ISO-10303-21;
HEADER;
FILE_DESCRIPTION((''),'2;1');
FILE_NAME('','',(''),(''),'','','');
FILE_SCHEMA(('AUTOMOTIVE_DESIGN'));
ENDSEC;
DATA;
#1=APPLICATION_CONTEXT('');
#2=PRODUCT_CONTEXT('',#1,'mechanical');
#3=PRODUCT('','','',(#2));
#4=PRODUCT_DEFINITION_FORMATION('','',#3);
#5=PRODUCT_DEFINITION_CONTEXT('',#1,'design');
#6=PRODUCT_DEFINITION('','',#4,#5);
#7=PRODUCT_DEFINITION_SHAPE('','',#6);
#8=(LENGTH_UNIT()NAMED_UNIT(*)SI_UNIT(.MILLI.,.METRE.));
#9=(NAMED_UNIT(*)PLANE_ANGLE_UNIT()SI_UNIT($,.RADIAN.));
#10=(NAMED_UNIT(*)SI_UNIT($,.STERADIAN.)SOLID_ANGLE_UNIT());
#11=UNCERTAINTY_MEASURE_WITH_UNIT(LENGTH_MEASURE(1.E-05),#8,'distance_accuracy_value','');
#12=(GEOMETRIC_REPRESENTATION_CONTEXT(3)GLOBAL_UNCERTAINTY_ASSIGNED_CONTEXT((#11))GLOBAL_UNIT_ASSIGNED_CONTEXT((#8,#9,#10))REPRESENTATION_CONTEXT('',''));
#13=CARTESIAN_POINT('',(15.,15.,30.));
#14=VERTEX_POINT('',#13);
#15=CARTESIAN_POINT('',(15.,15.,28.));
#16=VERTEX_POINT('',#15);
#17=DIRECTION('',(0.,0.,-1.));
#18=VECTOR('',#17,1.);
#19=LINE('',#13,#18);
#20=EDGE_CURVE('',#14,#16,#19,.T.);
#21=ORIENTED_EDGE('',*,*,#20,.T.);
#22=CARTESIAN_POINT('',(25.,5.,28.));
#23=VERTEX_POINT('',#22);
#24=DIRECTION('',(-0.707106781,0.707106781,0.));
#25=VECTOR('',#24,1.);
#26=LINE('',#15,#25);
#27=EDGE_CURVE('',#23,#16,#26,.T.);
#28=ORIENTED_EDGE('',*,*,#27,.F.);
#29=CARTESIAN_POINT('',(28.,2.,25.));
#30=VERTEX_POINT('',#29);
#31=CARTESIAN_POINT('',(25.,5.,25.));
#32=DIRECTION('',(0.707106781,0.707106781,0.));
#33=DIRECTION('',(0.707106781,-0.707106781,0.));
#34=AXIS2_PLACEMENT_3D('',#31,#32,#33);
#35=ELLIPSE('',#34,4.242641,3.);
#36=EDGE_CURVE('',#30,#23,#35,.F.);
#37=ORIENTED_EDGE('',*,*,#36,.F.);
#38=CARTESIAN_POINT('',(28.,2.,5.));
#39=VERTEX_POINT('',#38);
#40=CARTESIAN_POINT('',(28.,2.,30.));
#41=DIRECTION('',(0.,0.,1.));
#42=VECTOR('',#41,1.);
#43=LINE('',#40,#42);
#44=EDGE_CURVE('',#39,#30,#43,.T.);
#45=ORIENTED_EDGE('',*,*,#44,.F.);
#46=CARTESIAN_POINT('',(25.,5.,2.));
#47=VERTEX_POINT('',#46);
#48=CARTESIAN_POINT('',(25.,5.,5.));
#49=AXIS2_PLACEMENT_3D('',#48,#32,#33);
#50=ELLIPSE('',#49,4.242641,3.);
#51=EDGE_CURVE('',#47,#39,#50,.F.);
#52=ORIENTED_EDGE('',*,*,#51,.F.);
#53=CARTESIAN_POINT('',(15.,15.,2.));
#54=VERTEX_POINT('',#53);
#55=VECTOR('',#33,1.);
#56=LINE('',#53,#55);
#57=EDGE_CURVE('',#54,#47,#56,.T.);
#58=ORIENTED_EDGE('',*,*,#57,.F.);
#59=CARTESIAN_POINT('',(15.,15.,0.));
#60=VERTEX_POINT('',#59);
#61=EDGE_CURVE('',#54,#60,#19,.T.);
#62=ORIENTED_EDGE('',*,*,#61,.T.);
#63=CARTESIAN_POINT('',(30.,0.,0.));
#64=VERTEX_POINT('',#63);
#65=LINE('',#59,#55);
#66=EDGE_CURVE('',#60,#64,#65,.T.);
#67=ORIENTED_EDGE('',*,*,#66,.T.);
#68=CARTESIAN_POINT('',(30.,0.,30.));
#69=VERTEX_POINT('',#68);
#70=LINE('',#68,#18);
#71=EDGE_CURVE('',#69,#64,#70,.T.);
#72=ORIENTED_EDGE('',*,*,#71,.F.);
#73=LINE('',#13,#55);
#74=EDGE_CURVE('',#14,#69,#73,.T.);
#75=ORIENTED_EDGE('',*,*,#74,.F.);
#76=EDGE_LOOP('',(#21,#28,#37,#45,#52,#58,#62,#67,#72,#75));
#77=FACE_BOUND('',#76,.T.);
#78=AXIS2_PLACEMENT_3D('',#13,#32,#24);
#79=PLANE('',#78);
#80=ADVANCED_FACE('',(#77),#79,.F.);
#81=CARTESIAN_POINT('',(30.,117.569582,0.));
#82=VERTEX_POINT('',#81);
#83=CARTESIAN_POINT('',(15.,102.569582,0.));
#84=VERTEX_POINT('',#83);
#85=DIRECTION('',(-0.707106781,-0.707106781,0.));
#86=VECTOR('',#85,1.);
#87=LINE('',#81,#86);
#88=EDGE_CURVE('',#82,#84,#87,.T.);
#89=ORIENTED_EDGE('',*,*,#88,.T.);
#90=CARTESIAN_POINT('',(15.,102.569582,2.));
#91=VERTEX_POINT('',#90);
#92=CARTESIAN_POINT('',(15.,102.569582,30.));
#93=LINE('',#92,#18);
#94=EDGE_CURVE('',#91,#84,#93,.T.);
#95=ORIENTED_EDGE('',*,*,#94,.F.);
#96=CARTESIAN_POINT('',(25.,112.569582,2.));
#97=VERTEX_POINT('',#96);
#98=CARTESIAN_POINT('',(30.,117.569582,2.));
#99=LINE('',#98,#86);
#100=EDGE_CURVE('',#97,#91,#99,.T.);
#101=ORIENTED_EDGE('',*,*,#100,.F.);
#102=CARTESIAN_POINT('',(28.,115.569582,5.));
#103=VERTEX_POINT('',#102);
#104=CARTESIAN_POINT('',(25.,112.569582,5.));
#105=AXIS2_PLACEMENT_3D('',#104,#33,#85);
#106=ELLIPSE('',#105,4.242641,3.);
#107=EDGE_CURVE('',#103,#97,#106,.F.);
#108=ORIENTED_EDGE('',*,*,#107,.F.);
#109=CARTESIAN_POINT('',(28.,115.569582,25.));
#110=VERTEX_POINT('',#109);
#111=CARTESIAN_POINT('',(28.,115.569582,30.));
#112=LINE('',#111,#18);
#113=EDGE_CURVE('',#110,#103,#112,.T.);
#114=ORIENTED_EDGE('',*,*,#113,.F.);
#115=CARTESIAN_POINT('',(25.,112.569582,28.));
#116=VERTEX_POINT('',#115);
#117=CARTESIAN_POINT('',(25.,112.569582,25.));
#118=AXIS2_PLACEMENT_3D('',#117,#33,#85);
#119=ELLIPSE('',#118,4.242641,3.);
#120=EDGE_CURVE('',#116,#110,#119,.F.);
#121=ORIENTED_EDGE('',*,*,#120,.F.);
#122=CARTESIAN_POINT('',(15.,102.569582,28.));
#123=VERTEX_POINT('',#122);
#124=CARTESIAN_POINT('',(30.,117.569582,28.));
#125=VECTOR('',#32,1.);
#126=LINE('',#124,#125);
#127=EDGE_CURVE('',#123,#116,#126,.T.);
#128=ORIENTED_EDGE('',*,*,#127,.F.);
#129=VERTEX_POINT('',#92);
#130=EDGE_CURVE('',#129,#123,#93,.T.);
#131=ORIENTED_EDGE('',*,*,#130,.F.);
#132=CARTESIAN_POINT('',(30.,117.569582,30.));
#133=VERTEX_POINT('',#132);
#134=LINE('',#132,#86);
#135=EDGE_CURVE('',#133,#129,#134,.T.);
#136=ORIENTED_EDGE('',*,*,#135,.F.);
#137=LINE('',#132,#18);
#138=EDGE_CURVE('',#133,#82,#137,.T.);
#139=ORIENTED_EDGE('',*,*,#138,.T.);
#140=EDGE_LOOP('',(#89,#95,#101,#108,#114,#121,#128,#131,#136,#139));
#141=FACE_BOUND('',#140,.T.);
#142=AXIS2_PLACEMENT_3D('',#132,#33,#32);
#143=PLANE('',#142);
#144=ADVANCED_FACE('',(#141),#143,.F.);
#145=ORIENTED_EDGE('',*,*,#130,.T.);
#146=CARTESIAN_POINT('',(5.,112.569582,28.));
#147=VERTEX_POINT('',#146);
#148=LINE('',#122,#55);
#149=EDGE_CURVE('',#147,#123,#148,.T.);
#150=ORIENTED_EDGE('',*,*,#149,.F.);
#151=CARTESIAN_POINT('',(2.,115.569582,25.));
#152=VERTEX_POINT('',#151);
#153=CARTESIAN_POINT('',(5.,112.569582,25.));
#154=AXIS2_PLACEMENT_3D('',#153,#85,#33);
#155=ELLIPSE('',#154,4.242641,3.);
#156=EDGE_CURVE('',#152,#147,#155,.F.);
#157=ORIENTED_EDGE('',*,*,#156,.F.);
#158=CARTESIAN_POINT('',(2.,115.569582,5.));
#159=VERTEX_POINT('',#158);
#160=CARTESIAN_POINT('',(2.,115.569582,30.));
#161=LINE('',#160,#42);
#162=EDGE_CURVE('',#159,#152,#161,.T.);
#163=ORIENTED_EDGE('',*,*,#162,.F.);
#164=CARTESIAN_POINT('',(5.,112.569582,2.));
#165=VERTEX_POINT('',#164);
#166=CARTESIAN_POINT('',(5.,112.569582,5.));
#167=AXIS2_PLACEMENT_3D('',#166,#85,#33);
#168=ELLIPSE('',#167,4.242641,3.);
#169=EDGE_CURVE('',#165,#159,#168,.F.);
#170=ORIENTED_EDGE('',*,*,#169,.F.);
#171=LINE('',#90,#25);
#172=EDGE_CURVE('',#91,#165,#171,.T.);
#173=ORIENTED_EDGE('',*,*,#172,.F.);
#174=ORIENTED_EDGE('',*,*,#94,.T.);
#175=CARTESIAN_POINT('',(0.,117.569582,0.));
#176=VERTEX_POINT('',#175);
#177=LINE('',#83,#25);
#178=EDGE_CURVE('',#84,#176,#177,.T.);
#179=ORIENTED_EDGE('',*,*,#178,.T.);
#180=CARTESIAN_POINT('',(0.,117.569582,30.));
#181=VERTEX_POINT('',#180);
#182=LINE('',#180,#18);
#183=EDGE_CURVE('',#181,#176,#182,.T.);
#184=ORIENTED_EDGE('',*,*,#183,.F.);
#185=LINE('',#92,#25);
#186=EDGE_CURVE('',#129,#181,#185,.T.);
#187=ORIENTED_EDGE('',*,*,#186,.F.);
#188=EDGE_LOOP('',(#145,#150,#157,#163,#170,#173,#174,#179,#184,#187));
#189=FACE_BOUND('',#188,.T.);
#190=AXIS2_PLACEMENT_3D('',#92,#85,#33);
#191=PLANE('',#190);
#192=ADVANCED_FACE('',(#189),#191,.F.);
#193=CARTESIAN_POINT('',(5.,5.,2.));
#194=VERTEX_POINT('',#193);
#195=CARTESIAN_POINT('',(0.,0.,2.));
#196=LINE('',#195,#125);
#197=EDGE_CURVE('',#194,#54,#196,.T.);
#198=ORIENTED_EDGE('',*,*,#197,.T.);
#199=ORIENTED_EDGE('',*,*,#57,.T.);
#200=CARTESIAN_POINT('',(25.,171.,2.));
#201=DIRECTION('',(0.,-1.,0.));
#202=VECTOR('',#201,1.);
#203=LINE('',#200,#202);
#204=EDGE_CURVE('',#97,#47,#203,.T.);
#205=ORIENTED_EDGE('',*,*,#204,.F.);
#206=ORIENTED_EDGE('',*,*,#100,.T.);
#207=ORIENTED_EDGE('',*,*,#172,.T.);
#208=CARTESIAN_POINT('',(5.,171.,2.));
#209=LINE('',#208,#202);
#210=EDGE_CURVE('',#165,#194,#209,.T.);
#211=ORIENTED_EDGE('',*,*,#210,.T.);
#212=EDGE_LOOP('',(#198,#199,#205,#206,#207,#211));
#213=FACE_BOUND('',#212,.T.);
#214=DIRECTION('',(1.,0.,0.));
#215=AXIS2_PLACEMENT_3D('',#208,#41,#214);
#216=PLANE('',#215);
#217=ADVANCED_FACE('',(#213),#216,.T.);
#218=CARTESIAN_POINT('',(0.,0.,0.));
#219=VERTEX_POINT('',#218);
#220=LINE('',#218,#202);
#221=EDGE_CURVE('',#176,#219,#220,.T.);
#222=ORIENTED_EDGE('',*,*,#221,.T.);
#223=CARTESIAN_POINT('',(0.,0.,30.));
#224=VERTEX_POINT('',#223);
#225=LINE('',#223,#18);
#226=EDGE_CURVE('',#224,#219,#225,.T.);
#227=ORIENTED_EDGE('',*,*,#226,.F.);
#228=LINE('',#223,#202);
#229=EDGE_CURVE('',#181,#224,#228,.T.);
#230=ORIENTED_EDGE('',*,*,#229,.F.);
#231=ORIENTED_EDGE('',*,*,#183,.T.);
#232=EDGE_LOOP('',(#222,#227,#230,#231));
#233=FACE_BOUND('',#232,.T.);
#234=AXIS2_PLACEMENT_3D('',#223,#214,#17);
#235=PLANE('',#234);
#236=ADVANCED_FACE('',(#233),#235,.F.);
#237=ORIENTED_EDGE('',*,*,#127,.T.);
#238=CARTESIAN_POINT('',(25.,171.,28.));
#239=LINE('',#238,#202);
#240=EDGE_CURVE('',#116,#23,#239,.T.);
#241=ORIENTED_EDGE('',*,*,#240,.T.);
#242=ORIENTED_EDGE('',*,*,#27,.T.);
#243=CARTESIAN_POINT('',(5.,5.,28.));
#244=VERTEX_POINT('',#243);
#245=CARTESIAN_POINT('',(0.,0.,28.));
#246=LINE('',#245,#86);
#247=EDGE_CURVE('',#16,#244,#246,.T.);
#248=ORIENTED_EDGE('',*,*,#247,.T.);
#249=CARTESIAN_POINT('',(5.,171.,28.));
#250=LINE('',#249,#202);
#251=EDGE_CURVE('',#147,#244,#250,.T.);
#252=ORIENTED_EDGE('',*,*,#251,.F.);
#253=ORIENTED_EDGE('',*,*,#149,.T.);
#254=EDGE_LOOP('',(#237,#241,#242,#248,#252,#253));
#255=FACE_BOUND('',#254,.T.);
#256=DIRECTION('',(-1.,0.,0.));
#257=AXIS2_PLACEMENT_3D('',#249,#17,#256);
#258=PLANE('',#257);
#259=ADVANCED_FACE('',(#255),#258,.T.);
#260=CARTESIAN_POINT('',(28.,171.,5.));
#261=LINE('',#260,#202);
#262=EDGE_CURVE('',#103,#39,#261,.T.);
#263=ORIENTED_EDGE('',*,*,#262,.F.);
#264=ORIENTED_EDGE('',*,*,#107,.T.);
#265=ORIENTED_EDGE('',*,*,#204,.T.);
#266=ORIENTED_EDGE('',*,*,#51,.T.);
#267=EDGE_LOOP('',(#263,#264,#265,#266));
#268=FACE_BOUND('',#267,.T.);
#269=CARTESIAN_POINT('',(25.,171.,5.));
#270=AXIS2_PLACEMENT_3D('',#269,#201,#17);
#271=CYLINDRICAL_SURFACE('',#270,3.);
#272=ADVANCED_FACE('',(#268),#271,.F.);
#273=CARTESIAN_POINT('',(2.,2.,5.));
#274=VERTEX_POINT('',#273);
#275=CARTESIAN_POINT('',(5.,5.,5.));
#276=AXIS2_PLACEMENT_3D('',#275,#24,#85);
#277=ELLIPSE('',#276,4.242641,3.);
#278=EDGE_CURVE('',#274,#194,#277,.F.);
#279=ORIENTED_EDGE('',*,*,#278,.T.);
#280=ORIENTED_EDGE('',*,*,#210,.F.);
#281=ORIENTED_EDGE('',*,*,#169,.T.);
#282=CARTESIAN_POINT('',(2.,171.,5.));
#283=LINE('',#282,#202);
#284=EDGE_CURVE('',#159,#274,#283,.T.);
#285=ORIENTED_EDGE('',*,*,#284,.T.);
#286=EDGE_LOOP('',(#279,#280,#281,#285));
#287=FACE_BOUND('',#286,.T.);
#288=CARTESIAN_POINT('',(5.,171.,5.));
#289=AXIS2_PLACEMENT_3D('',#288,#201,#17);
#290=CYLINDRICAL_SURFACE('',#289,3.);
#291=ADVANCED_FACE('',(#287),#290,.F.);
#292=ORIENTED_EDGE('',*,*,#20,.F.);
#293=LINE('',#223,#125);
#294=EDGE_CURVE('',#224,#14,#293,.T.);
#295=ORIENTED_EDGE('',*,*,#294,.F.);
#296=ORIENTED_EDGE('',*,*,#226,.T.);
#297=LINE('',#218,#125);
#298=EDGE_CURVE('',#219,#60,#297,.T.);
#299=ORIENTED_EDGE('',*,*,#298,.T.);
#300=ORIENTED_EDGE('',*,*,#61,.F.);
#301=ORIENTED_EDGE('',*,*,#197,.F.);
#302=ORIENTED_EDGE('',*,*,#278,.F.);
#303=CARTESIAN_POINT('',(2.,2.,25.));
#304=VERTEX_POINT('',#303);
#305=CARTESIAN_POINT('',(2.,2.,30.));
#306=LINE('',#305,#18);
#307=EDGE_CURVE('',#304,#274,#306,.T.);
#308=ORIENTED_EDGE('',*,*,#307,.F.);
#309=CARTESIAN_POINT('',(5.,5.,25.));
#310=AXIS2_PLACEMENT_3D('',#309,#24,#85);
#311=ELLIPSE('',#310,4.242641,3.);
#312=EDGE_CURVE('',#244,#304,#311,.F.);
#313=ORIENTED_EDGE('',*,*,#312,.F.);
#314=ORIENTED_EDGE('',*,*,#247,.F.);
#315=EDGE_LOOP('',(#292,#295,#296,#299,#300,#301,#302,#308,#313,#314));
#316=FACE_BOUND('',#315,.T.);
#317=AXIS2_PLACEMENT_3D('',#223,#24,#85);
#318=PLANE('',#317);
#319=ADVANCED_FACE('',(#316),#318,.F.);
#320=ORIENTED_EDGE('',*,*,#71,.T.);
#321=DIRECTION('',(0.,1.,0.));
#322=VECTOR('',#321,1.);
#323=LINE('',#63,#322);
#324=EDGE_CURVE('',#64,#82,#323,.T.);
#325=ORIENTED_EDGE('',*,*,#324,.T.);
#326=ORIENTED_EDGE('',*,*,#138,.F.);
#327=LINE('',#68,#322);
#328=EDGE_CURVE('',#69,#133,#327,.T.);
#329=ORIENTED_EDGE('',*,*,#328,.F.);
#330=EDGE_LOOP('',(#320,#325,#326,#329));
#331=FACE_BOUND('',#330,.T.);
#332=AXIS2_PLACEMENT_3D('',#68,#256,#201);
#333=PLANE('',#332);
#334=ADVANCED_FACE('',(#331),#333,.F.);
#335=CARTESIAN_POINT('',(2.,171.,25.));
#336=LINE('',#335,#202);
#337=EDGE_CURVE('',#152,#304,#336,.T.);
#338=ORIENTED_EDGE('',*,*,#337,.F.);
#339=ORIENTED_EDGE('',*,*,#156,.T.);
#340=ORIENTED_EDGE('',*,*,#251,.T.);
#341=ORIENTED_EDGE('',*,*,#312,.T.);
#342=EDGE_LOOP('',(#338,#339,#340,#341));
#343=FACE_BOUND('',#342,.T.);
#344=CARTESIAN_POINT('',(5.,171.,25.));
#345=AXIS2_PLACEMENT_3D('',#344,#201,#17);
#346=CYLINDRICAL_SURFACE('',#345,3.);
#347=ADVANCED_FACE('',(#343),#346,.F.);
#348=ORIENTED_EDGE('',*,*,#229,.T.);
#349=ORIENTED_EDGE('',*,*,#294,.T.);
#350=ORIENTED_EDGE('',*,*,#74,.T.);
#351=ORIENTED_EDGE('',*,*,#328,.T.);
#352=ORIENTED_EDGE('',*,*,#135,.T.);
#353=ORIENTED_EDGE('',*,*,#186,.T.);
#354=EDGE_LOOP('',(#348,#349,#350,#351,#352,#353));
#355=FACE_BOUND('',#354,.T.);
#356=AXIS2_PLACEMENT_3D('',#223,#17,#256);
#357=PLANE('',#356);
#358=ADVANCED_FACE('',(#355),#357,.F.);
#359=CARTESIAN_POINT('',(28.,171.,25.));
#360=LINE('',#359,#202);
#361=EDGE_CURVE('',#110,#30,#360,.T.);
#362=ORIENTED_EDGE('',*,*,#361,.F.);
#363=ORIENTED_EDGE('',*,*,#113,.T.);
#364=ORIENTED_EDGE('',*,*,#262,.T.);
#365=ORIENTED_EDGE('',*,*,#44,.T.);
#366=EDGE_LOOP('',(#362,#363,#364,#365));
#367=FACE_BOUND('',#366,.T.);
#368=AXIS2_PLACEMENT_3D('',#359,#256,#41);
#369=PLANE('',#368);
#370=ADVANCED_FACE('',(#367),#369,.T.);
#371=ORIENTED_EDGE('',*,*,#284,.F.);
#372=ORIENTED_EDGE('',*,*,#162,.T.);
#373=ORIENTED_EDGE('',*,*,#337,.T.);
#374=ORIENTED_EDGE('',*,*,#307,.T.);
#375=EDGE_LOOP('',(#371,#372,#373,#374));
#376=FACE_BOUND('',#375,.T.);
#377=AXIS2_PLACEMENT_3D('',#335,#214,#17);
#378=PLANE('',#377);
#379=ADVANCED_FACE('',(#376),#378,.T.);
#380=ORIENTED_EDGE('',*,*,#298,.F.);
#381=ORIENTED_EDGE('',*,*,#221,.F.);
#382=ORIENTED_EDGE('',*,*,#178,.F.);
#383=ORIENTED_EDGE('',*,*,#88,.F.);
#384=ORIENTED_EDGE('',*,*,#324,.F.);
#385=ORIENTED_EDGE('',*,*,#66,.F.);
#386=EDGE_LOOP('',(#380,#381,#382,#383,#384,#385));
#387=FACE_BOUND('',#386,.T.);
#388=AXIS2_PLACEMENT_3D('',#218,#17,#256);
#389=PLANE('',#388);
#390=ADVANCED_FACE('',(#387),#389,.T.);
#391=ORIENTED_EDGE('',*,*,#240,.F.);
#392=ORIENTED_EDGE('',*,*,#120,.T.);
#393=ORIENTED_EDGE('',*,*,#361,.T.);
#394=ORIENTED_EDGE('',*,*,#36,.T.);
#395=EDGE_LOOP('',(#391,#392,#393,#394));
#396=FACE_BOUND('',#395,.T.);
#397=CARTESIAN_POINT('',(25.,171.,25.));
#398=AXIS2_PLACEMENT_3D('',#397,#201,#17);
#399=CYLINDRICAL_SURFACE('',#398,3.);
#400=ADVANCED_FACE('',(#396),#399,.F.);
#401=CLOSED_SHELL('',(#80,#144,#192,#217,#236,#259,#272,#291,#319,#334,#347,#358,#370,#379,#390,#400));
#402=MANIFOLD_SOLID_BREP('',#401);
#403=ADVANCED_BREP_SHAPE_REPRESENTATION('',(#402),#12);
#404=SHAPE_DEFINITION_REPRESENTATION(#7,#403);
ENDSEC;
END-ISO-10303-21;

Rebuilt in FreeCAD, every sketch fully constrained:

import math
import FreeCAD as App
import Part
import Sketcher

V = App.Vector


def add_polygon(sketch, points):
    """Adds a closed chain of lines whose ends are joined by coincident constraints."""
    first, n = sketch.GeometryCount, len(points)
    for a, b in zip(points, points[1:] + points[:1]):
        sketch.addGeometry(Part.LineSegment(App.Vector(*a, 0), App.Vector(*b, 0)), False)
    for i in range(n):
        sketch.addConstraint(Sketcher.Constraint("Coincident", first + i, 2, first + (i + 1) % n, 1))

doc = App.newDocument("Part")
params = doc.addObject("Spreadsheet::Sheet", "Params")
for row, (alias, value) in enumerate([
    ("pad1_length", "30 mm"),
    ("sketch2_radius", "3 mm"),
    ("sketch2_width", "20 mm"),
    ("pocket1_length", "171 mm"),
], start=1):
    params.set(f"A{row}", alias)
    params.set(f"B{row}", "=" + value)
    params.setAlias(f"B{row}", alias)

body = doc.addObject("PartDesign::Body", "Body")

# Sketch on XY plane
sketch1 = doc.addObject("Sketcher::SketchObject", "Sketch")
body.addObject(sketch1)
sketch1.AttachmentSupport = (doc.XY_Plane, [""])
sketch1.MapMode = "FlatFace"
add_polygon(sketch1, [(0, 117.569582), (0, 0), (15, 15), (30, 0), (30, 117.569582), (15, 102.569582)])  # lines 0-5
sketch1.addConstraint([
    Sketcher.Constraint("Vertical", 0),
    Sketcher.Constraint("Vertical", 3),
    Sketcher.Constraint("Coincident", 0, 2, -1, 1),
    Sketcher.Constraint("PointOnObject", 2, 2, -1),
    Sketcher.Constraint("Perpendicular", 1, 2),
    Sketcher.Constraint("Perpendicular", 2, 4),
    Sketcher.Constraint("Perpendicular", 4, 5),
    Sketcher.Constraint("Horizontal", 3, 2, 5, 2),
    Sketcher.Constraint("Vertical", 1, 2, 4, 2),
    Sketcher.Constraint("DistanceX", -1, 1, 1, 2, 15.0),
    Sketcher.Constraint("DistanceY", 0, 2, 0, 1, 117.569582),
])
pad1 = doc.addObject("PartDesign::Pad", "Pad")
body.addObject(pad1)
pad1.Profile = sketch1
pad1.setExpression("Length", "Params.pad1_length")

# Sketch on XZ plane
sketch2 = doc.addObject("Sketcher::SketchObject", "Sketch001")
body.addObject(sketch2)
sketch2.AttachmentSupport = (doc.XZ_Plane, [""])
sketch2.MapMode = "FlatFace"
sketch2.addGeometry([
    Part.LineSegment(V(5, 28, 0), V(25, 28, 0)),  # 0
    Part.ArcOfCircle(Part.Circle(V(25, 25, 0), V(0, 0, 1), 3), math.radians(0), math.radians(90)),  # 1
    Part.LineSegment(V(28, 25, 0), V(28, 5, 0)),  # 2
    Part.ArcOfCircle(Part.Circle(V(25, 5, 0), V(0, 0, 1), 3), math.radians(-90), math.radians(0)),  # 3
    Part.LineSegment(V(25, 2, 0), V(5, 2, 0)),  # 4
    Part.ArcOfCircle(Part.Circle(V(5, 5, 0), V(0, 0, 1), 3), math.radians(180), math.radians(270)),  # 5
    Part.LineSegment(V(2, 5, 0), V(2, 25, 0)),  # 6
    Part.ArcOfCircle(Part.Circle(V(5, 25, 0), V(0, 0, 1), 3), math.radians(90), math.radians(180)),  # 7
], False)
sketch2.addConstraint([
    Sketcher.Constraint("Tangent", 0, 2, 1, 2),
    Sketcher.Constraint("Tangent", 1, 1, 2, 1),
    Sketcher.Constraint("Tangent", 2, 2, 3, 2),
    Sketcher.Constraint("Tangent", 3, 1, 4, 1),
    Sketcher.Constraint("Tangent", 4, 2, 5, 2),
    Sketcher.Constraint("Tangent", 5, 1, 6, 1),
    Sketcher.Constraint("Tangent", 6, 2, 7, 2),
    Sketcher.Constraint("Tangent", 7, 1, 0, 1),
    Sketcher.Constraint("Horizontal", 0),
    Sketcher.Constraint("Vertical", 2),
    Sketcher.Constraint("Horizontal", 4),
    Sketcher.Constraint("Vertical", 6),
    Sketcher.Constraint("Equal", 1, 3),
    Sketcher.Constraint("Equal", 3, 5),
    Sketcher.Constraint("Equal", 5, 7),
    Sketcher.Constraint("Equal", 4, 2),
    Sketcher.Constraint("Radius", 1, 3.0),
    Sketcher.Constraint("DistanceX", 0, 1, 0, 2, 20.0),
    Sketcher.Constraint("DistanceX", -1, 1, 1, 3, 25.0),
    Sketcher.Constraint("DistanceY", -1, 1, 1, 3, 25.0),
])
sketch2.setExpression("Constraints[16]", "Params.sketch2_radius")
sketch2.setExpression("Constraints[17]", "Params.sketch2_width")
pocket1 = doc.addObject("PartDesign::Pocket", "Pocket")
body.addObject(pocket1)
pocket1.Profile = sketch2
pocket1.setExpression("Length", "Params.pocket1_length")

doc.recompute()
